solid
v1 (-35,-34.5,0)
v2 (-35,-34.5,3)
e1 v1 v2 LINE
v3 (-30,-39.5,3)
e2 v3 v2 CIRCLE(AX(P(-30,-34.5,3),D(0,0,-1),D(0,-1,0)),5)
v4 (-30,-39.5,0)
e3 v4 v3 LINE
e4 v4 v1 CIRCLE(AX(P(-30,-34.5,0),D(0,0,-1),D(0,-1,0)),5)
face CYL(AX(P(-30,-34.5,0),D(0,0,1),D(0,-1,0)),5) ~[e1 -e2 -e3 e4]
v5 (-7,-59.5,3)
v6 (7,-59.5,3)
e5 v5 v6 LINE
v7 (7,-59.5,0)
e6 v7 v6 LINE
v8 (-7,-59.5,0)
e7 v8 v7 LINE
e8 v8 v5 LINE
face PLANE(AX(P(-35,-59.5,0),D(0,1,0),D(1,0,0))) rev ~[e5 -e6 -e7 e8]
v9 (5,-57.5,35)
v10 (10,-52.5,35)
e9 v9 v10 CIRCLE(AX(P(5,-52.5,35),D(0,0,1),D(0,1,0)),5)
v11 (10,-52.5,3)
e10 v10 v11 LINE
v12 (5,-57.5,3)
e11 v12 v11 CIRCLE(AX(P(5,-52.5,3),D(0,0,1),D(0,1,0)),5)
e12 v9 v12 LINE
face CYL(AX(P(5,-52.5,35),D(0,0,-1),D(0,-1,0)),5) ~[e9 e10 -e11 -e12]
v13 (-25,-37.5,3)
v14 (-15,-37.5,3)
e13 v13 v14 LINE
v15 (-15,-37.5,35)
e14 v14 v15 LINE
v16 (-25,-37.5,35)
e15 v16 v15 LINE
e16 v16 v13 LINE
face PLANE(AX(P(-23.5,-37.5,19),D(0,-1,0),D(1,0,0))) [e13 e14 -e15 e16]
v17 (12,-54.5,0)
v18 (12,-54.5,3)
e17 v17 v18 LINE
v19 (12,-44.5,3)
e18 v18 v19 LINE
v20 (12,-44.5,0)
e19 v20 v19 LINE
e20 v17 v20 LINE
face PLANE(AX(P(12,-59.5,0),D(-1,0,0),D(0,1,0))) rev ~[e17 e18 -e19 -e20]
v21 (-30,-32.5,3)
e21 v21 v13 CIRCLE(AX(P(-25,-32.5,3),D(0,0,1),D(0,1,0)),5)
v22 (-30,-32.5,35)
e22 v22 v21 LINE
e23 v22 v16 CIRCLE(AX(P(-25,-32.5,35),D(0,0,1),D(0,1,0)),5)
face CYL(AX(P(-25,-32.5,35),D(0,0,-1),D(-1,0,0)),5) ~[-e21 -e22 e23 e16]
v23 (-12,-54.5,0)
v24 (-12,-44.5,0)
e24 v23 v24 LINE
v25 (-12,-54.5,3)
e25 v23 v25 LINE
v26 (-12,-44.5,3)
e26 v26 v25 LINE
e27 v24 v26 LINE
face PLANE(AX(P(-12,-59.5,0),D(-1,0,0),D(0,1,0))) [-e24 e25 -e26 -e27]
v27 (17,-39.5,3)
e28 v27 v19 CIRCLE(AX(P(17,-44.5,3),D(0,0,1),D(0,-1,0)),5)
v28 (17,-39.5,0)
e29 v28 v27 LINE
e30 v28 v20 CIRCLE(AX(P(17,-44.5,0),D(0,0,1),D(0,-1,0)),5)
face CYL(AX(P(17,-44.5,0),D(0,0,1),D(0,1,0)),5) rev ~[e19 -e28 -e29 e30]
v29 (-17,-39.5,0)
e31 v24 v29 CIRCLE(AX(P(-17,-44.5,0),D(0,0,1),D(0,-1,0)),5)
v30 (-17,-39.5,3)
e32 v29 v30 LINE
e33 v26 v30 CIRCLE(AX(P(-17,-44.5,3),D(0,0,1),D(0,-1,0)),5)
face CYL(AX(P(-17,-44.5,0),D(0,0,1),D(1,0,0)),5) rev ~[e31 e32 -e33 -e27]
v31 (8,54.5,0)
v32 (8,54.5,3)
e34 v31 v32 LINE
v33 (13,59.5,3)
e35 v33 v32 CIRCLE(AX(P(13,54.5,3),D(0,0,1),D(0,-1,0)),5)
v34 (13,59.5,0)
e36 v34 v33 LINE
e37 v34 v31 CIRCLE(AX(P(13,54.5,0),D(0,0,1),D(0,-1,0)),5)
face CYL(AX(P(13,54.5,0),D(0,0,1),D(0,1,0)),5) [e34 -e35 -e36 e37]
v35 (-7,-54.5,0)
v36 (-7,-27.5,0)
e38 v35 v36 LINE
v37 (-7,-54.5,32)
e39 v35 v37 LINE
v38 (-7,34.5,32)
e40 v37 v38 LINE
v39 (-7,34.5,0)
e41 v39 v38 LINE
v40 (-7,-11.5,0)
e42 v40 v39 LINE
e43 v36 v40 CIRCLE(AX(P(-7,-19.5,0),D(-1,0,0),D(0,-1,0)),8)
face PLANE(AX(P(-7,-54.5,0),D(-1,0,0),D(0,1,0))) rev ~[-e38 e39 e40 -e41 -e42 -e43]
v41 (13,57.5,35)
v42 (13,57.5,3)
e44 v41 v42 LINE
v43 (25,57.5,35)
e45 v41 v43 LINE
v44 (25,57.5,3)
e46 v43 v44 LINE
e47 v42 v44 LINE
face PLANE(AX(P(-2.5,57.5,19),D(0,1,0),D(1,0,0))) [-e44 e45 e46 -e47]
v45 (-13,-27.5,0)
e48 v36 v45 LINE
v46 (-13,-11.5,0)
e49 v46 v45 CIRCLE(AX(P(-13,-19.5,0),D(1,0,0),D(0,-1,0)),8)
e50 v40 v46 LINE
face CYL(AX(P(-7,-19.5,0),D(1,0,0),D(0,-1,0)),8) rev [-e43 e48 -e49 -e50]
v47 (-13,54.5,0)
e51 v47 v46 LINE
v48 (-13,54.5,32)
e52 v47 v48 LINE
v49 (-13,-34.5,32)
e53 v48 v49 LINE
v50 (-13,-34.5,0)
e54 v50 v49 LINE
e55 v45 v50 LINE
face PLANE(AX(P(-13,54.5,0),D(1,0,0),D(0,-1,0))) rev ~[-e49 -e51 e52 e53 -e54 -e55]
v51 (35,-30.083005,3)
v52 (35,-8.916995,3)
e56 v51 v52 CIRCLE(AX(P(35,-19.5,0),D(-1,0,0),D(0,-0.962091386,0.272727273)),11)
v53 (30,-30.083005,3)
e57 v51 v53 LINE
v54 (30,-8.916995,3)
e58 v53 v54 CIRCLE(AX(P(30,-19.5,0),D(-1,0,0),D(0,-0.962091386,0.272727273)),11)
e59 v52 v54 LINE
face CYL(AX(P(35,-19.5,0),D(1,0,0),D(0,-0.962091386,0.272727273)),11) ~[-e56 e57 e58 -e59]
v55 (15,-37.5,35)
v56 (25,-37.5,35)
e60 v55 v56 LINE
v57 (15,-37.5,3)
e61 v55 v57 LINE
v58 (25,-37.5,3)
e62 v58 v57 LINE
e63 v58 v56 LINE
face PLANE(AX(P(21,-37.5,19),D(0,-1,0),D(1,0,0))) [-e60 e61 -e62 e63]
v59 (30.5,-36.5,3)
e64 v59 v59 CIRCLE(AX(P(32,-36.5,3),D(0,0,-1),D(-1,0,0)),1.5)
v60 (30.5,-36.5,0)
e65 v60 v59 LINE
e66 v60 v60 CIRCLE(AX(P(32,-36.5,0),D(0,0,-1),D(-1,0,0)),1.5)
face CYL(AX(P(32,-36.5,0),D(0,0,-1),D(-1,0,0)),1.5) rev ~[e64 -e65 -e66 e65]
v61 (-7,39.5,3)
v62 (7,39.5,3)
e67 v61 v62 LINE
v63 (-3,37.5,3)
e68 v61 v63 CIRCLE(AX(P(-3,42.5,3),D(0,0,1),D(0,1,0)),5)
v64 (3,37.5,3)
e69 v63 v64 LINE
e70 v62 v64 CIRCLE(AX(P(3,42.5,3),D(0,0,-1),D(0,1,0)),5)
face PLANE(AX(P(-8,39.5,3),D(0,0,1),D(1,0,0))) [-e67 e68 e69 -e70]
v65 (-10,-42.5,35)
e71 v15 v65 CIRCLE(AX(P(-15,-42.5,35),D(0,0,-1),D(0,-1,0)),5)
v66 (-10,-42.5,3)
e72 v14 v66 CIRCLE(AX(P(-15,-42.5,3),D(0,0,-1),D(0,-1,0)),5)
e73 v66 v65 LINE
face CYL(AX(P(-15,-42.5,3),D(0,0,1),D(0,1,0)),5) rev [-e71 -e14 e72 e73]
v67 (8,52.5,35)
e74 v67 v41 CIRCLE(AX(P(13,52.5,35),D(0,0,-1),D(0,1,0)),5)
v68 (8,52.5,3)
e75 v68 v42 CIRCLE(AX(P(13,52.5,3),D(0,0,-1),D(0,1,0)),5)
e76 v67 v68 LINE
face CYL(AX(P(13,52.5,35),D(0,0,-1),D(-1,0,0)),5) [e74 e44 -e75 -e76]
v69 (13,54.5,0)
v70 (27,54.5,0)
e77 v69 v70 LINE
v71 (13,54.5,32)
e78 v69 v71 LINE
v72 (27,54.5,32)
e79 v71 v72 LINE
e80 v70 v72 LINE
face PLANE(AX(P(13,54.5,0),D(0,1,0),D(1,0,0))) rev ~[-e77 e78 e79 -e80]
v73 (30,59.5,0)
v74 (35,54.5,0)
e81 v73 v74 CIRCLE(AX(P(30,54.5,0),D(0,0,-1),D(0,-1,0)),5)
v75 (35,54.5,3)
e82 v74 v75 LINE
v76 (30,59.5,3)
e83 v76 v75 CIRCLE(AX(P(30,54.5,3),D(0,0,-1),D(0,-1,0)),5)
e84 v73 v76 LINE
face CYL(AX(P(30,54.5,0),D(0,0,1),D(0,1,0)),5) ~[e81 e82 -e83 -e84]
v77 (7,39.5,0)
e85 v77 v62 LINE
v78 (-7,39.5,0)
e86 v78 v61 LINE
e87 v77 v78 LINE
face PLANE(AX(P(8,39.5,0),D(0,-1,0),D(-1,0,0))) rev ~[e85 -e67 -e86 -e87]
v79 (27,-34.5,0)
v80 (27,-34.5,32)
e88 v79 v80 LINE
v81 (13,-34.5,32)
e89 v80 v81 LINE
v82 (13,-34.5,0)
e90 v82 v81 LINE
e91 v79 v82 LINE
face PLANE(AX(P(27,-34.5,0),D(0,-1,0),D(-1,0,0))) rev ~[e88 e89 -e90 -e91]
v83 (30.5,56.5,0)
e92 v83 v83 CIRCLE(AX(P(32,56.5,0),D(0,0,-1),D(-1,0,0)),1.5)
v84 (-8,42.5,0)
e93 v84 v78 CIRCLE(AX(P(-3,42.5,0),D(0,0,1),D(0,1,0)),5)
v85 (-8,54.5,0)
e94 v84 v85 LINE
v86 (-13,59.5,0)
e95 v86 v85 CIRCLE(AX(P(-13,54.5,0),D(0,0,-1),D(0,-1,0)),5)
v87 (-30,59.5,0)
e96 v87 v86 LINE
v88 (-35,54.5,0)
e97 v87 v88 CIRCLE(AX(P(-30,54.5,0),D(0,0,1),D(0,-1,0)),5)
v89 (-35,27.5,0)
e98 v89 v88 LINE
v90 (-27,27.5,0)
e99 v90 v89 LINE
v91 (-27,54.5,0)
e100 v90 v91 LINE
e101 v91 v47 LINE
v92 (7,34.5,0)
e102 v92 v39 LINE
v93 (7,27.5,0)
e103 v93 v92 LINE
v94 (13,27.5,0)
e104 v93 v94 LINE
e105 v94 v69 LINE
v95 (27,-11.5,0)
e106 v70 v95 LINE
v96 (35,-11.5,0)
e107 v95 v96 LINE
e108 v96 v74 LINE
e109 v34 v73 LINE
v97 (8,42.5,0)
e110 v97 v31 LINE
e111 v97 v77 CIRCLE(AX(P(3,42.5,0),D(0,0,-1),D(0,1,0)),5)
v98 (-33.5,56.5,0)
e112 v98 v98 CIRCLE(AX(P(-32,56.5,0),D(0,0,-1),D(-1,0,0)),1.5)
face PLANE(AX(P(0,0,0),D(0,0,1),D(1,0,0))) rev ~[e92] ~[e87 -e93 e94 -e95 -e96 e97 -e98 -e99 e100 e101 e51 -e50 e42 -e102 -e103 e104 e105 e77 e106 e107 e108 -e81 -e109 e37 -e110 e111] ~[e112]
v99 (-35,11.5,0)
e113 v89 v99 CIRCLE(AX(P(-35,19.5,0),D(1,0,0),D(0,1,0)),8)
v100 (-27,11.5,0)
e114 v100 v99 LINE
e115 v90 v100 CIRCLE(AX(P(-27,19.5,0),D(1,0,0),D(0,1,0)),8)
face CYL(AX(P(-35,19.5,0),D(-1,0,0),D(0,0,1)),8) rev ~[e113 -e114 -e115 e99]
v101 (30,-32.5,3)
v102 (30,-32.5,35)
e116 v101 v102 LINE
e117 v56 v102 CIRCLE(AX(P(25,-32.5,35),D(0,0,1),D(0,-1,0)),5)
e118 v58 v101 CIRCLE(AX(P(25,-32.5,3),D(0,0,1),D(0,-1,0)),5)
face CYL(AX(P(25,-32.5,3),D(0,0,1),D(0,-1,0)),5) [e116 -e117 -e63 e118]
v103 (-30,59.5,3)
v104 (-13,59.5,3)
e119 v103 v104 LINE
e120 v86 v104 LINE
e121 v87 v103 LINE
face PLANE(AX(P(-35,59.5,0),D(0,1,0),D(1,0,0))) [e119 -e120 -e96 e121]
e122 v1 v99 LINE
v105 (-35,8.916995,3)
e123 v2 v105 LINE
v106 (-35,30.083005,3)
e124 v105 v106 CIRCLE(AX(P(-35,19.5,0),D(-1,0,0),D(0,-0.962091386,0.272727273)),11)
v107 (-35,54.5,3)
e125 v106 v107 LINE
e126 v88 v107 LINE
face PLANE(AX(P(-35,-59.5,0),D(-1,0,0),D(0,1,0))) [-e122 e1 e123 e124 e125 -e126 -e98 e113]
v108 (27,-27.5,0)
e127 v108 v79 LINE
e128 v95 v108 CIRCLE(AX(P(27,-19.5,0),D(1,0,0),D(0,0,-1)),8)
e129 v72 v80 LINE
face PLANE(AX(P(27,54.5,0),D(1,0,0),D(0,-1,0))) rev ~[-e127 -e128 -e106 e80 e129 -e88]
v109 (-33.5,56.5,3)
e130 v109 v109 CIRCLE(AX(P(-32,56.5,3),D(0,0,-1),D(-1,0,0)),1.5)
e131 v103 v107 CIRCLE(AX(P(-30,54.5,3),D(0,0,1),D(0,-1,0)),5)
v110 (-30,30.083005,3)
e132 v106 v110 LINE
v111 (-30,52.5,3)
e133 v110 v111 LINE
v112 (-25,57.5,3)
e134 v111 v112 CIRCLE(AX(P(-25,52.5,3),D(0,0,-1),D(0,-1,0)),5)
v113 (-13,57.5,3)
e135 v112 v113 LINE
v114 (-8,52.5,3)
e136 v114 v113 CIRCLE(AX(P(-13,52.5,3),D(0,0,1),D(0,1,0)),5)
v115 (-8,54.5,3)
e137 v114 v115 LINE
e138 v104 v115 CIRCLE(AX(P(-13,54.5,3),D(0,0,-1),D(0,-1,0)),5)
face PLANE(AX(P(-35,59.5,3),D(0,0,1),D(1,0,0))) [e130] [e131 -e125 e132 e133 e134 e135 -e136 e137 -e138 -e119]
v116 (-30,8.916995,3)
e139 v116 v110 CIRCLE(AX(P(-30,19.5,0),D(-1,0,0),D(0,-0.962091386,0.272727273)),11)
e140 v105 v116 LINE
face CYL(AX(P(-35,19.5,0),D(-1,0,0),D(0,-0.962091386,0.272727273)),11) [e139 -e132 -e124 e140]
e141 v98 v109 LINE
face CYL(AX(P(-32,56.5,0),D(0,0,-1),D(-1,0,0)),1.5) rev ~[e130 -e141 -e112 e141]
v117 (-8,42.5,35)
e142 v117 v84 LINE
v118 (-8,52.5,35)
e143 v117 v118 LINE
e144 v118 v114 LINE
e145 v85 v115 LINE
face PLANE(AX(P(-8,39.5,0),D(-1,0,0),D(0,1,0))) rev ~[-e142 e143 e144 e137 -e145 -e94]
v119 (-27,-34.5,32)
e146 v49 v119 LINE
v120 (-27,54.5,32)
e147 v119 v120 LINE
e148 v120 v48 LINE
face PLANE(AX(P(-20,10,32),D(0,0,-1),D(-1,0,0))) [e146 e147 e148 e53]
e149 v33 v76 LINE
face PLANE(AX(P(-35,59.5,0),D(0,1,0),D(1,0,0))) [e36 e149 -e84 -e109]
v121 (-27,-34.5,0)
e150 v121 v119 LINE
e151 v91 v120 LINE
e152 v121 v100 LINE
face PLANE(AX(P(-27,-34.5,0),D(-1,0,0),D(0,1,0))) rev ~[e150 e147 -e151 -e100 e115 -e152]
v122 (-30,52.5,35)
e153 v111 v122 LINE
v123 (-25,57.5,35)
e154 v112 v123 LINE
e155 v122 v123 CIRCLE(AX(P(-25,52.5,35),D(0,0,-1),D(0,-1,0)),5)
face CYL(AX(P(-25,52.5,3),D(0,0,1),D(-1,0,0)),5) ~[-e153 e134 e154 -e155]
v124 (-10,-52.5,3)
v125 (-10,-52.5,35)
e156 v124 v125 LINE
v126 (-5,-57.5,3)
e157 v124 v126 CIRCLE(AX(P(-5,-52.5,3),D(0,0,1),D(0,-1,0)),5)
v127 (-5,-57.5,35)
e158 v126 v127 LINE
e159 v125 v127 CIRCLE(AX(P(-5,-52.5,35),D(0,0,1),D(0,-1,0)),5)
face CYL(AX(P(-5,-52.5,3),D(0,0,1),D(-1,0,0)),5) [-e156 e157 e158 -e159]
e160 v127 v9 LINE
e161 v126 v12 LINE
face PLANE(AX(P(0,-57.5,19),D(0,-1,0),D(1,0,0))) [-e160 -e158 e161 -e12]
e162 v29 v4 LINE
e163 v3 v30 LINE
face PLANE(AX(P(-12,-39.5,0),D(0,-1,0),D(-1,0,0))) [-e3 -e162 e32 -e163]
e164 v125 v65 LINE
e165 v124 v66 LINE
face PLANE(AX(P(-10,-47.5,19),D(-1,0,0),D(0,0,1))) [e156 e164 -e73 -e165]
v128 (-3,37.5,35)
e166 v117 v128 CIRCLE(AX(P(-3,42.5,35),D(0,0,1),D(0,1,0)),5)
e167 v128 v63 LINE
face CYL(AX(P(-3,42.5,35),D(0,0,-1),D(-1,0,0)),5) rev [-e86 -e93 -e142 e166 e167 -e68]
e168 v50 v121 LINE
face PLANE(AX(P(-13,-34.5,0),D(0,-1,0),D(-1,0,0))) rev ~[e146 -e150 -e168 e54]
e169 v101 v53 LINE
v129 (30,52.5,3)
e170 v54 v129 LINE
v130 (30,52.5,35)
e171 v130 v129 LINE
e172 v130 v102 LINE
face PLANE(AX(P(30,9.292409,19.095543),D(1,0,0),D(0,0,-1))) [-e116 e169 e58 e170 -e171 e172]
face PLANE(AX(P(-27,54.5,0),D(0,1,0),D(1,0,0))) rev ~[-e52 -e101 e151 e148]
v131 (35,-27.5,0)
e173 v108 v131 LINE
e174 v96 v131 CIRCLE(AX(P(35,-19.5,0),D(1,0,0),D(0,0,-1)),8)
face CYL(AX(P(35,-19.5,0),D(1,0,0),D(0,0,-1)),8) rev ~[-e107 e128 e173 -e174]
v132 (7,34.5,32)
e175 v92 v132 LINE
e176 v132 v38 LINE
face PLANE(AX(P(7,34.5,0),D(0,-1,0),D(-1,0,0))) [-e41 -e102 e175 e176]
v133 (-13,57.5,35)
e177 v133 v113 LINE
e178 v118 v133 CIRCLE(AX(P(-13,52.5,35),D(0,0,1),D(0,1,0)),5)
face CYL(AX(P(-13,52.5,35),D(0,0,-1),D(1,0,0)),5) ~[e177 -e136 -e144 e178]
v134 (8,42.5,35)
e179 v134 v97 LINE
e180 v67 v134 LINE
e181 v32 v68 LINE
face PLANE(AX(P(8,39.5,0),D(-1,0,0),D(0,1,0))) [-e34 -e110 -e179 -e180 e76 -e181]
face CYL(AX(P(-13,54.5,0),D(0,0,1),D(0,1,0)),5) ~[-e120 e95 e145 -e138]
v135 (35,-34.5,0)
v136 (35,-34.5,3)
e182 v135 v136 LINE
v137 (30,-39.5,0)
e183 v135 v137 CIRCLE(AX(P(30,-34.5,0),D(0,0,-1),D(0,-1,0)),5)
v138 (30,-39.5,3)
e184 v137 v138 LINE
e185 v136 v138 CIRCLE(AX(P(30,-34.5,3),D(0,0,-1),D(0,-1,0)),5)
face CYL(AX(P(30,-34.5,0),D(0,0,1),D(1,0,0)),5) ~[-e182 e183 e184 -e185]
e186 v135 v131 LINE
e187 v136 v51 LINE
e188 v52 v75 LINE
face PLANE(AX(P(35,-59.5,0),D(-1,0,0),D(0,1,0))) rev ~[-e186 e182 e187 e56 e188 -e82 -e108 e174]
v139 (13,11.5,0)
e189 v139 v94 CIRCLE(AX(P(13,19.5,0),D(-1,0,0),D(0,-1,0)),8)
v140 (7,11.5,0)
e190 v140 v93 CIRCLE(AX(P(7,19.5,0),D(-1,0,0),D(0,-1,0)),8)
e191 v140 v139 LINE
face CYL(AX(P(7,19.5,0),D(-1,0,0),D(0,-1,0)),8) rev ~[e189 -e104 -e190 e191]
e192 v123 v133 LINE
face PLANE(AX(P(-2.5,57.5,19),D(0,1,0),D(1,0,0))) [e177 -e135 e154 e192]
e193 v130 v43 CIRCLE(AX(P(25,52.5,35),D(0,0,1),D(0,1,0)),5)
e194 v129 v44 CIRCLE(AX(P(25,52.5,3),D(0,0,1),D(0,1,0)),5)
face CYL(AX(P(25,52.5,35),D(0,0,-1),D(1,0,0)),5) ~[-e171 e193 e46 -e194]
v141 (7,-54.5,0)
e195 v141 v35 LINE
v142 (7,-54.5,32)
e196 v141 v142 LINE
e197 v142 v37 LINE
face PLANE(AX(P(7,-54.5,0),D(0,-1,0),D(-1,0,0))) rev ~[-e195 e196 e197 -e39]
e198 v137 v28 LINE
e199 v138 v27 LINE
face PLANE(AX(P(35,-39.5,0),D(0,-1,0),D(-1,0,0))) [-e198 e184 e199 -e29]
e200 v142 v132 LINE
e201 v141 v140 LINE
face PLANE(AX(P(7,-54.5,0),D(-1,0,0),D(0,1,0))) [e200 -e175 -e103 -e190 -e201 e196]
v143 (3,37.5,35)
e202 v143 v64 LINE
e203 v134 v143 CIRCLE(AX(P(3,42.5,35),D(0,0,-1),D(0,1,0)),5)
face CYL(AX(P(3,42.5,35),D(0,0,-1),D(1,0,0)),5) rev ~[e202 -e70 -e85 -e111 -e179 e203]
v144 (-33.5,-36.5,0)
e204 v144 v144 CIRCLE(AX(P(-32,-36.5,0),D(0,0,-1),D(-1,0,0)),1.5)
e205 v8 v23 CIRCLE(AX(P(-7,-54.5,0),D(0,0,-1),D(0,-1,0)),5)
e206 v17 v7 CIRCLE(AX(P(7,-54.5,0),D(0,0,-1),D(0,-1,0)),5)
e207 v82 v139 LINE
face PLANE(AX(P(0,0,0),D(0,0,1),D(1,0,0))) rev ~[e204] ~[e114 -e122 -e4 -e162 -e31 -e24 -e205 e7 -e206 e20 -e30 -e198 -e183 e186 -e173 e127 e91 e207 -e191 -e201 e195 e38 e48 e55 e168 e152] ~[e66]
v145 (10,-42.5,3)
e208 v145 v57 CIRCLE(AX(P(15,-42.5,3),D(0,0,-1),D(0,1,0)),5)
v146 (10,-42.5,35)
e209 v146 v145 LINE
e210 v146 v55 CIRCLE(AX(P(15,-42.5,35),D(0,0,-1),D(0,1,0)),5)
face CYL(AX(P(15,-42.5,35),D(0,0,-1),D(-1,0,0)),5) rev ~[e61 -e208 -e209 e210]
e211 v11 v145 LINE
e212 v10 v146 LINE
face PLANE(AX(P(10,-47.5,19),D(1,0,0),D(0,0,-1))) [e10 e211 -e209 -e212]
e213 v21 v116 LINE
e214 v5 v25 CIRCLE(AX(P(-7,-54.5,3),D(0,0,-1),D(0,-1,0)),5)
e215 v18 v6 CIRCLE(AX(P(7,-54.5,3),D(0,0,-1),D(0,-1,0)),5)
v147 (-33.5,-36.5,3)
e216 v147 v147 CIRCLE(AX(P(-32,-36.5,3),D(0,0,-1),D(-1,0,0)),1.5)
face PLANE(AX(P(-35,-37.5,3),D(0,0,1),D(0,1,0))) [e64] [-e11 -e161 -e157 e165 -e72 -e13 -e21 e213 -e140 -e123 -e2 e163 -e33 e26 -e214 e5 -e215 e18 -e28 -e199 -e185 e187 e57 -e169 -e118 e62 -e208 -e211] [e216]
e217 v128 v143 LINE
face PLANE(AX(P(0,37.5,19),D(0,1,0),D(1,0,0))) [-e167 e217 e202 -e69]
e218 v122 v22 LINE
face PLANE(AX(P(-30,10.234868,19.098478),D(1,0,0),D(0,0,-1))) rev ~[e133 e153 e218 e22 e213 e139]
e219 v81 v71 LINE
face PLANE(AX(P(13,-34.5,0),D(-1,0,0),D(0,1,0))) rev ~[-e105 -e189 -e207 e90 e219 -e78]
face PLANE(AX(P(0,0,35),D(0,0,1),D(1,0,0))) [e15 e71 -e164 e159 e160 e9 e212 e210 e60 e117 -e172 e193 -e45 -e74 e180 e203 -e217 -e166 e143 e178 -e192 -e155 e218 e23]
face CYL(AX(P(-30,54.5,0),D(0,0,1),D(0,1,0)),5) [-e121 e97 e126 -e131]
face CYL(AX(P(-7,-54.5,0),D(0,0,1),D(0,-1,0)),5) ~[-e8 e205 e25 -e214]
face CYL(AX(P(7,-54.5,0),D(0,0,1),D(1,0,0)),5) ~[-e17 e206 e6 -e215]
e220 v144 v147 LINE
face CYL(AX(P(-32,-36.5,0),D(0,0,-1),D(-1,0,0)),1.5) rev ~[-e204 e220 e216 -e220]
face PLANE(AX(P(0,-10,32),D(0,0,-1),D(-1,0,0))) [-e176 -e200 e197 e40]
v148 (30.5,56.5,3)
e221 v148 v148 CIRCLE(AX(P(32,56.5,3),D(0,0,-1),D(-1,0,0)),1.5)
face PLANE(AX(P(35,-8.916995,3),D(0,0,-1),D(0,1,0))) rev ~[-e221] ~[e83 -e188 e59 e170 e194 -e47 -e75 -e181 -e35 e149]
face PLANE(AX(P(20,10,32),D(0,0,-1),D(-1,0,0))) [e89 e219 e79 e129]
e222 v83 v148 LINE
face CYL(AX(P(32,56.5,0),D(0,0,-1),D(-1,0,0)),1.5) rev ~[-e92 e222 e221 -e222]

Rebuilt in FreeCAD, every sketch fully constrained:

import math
import FreeCAD as App
import Part
import Sketcher


def edges_at(feature, points):
    """Names of the edges that pass closest to the given points."""
    edges = feature.Shape.Edges
    near = lambda p: min(range(len(edges)), key=lambda i: edges[i].distToShape(Part.Vertex(*p))[0])
    return sorted({f"Edge{near(p) + 1}" for p in points})

doc = App.newDocument("Part")
body = doc.addObject("PartDesign::Body", "Body")

sketch1 = body.newObject("Sketcher::SketchObject", "Sketch")
sketch1.AttachmentSupport = (doc.getObject("XY_Plane"), [""])
sketch1.MapMode = "FlatFace"
sketch1.addGeometry(Part.LineSegment(App.Vector(-35, 59.5, 0), App.Vector(-35, -59.5, 0)), False)
sketch1.addGeometry(Part.LineSegment(App.Vector(-35, -59.5, 0), App.Vector(35, -59.5, 0)), False)
sketch1.addGeometry(Part.LineSegment(App.Vector(35, -59.5, 0), App.Vector(35, 59.5, 0)), False)
sketch1.addGeometry(Part.LineSegment(App.Vector(35, 59.5, 0), App.Vector(-35, 59.5, 0)), False)
sketch1.addConstraint(Sketcher.Constraint("Coincident", 0, 2, 1, 1))
sketch1.addConstraint(Sketcher.Constraint("Coincident", 1, 2, 2, 1))
sketch1.addConstraint(Sketcher.Constraint("Coincident", 2, 2, 3, 1))
sketch1.addConstraint(Sketcher.Constraint("Coincident", 3, 2, 0, 1))
sketch1.addConstraint(Sketcher.Constraint("Vertical", 0))
sketch1.addConstraint(Sketcher.Constraint("Horizontal", 1))
sketch1.addConstraint(Sketcher.Constraint("Vertical", 2))
sketch1.addConstraint(Sketcher.Constraint("Horizontal", 3))
sketch1.addConstraint(Sketcher.Constraint("Symmetric", 0, 2, 2, 2, -1, 1))
sketch1.addConstraint(Sketcher.Constraint("DistanceX", 1, 1, 1, 2, 70.0))
sketch1.addConstraint(Sketcher.Constraint("DistanceY", 0, 2, 0, 1, 119.0))
pad1 = body.newObject("PartDesign::Pad", "Pad")
pad1.Profile = sketch1
pad1.Length = 35

sketch2 = body.newObject("Sketcher::SketchObject", "Sketch001")
sketch2.AttachmentSupport = (doc.getObject("YZ_Plane"), [""])
sketch2.MapMode = "FlatFace"
sketch2.AttachmentOffset = App.Placement(App.Vector(0, 0, 35), App.Rotation())
sketch2.addGeometry(Part.Circle(App.Vector(-19.5, 0, 0), App.Vector(0, 0, 1), 8), False)
sketch2.addConstraint(Sketcher.Constraint("PointOnObject", 0, 3, -1))
sketch2.addConstraint(Sketcher.Constraint("Diameter", 0, 16.0))
sketch2.addConstraint(Sketcher.Constraint("DistanceX", 0, 3, -1, 1, 19.5))
pocket1 = body.newObject("PartDesign::Pocket", "Pocket")
pocket1.Profile = sketch2
pocket1.Length = 8

sketch3 = body.newObject("Sketcher::SketchObject", "Sketch002")
sketch3.AttachmentSupport = (doc.getObject("YZ_Plane"), [""])
sketch3.MapMode = "FlatFace"
sketch3.AttachmentOffset = App.Placement(App.Vector(0, 0, -35), App.Rotation())
sketch3.addGeometry(Part.Circle(App.Vector(19.5, 0, 0), App.Vector(0, 0, 1), 8), False)
sketch3.addConstraint(Sketcher.Constraint("PointOnObject", 0, 3, -1))
sketch3.addConstraint(Sketcher.Constraint("Diameter", 0, 16.0))
sketch3.addConstraint(Sketcher.Constraint("DistanceX", -1, 1, 0, 3, 19.5))
pocket2 = body.newObject("PartDesign::Pocket", "Pocket001")
pocket2.Profile = sketch3
pocket2.Length = 8
pocket2.Reversed = True

sketch4 = body.newObject("Sketcher::SketchObject", "Sketch003")
sketch4.AttachmentSupport = (doc.getObject("XY_Plane"), [""])
sketch4.MapMode = "FlatFace"
sketch4.addGeometry(Part.LineSegment(App.Vector(13, -34.5, 0), App.Vector(13, 54.5, 0)), False)
sketch4.addGeometry(Part.LineSegment(App.Vector(13, 54.5, 0), App.Vector(27, 54.5, 0)), False)
sketch4.addGeometry(Part.LineSegment(App.Vector(27, 54.5, 0), App.Vector(27, -34.5, 0)), False)
sketch4.addGeometry(Part.LineSegment(App.Vector(27, -34.5, 0), App.Vector(13, -34.5, 0)), False)
sketch4.addGeometry(Part.LineSegment(App.Vector(7, 34.5, 0), App.Vector(7, -54.5, 0)), False)
sketch4.addGeometry(Part.LineSegment(App.Vector(7, -54.5, 0), App.Vector(-7, -54.5, 0)), False)
sketch4.addGeometry(Part.LineSegment(App.Vector(-7, -54.5, 0), App.Vector(-7, 34.5, 0)), False)
sketch4.addGeometry(Part.LineSegment(App.Vector(-7, 34.5, 0), App.Vector(7, 34.5, 0)), False)
sketch4.addGeometry(Part.LineSegment(App.Vector(-27, 54.5, 0), App.Vector(-13, 54.5, 0)), False)
sketch4.addGeometry(Part.LineSegment(App.Vector(-13, 54.5, 0), App.Vector(-13, -34.5, 0)), False)
sketch4.addGeometry(Part.LineSegment(App.Vector(-13, -34.5, 0), App.Vector(-27, -34.5, 0)), False)
sketch4.addGeometry(Part.LineSegment(App.Vector(-27, -34.5, 0), App.Vector(-27, 54.5, 0)), False)
sketch4.addConstraint(Sketcher.Constraint("Coincident", 0, 2, 1, 1))
sketch4.addConstraint(Sketcher.Constraint("Coincident", 1, 2, 2, 1))
sketch4.addConstraint(Sketcher.Constraint("Coincident", 2, 2, 3, 1))
sketch4.addConstraint(Sketcher.Constraint("Coincident", 3, 2, 0, 1))
sketch4.addConstraint(Sketcher.Constraint("Coincident", 4, 2, 5, 1))
sketch4.addConstraint(Sketcher.Constraint("Coincident", 5, 2, 6, 1))
sketch4.addConstraint(Sketcher.Constraint("Coincident", 6, 2, 7, 1))
sketch4.addConstraint(Sketcher.Constraint("Coincident", 7, 2, 4, 1))
sketch4.addConstraint(Sketcher.Constraint("Coincident", 8, 2, 9, 1))
sketch4.addConstraint(Sketcher.Constraint("Coincident", 9, 2, 10, 1))
sketch4.addConstraint(Sketcher.Constraint("Coincident", 10, 2, 11, 1))
sketch4.addConstraint(Sketcher.Constraint("Coincident", 11, 2, 8, 1))
sketch4.addConstraint(Sketcher.Constraint("Vertical", 0))
sketch4.addConstraint(Sketcher.Constraint("Horizontal", 1))
sketch4.addConstraint(Sketcher.Constraint("Vertical", 2))
sketch4.addConstraint(Sketcher.Constraint("Horizontal", 3))
sketch4.addConstraint(Sketcher.Constraint("Vertical", 4))
sketch4.addConstraint(Sketcher.Constraint("Horizontal", 5))
sketch4.addConstraint(Sketcher.Constraint("Vertical", 6))
sketch4.addConstraint(Sketcher.Constraint("Horizontal", 7))
sketch4.addConstraint(Sketcher.Constraint("Horizontal", 8))
sketch4.addConstraint(Sketcher.Constraint("Vertical", 9))
sketch4.addConstraint(Sketcher.Constraint("Horizontal", 10))
sketch4.addConstraint(Sketcher.Constraint("Vertical", 11))
sketch4.addConstraint(Sketcher.Constraint("Symmetric", 0, 2, 8, 2, -2))
sketch4.addConstraint(Sketcher.Constraint("Symmetric", 2, 2, 10, 2, -2))
sketch4.addConstraint(Sketcher.Constraint("Equal", 3, 5))
sketch4.addConstraint(Sketcher.Constraint("Equal", 2, 4))
sketch4.addConstraint(Sketcher.Constraint("DistanceX", 1, 1, 1, 2, 14.0))
sketch4.addConstraint(Sketcher.Constraint("DistanceY", 0, 1, 0, 2, 89.0))
sketch4.addConstraint(Sketcher.Constraint("DistanceX", -1, 1, 0, 2, 13.0))
sketch4.addConstraint(Sketcher.Constraint("DistanceX", -1, 1, 4, 2, 7.0))
sketch4.addConstraint(Sketcher.Constraint("DistanceY", 4, 2, 3, 2, 20.0))
sketch4.addConstraint(Sketcher.Constraint("DistanceY", -1, 1, 0, 2, 54.5))
pocket3 = body.newObject("PartDesign::Pocket", "Pocket002")
pocket3.Profile = sketch4
pocket3.Length = 32
pocket3.Reversed = True

sketch5 = body.newObject("Sketcher::SketchObject", "Sketch004")
sketch5.AttachmentSupport = (doc.getObject("YZ_Plane"), [""])
sketch5.MapMode = "FlatFace"
sketch5.AttachmentOffset = App.Placement(App.Vector(0, 0, 7), App.Rotation())
sketch5.addGeometry(Part.LineSegment(App.Vector(27.5, 0, 0), App.Vector(11.5, 0, 0)), False)
sketch5.addGeometry(Part.ArcOfCircle(Part.Circle(App.Vector(19.5, 0, 0), App.Vector(0, 0, 1), 8), math.radians(0), math.radians(180)), False)
sketch5.addConstraint(Sketcher.Constraint("Coincident", 0, 1, 1, 1))
sketch5.addConstraint(Sketcher.Constraint("Coincident", 1, 2, 0, 2))
sketch5.addConstraint(Sketcher.Constraint("Horizontal", 0))
sketch5.addConstraint(Sketcher.Constraint("PointOnObject", 1, 3, -1))
sketch5.addConstraint(Sketcher.Constraint("PointOnObject", 0, 1, -1))
sketch5.addConstraint(Sketcher.Constraint("Radius", 1, 8.0))
sketch5.addConstraint(Sketcher.Constraint("DistanceX", -1, 1, 1, 3, 19.5))
pocket4 = body.newObject("PartDesign::Pocket", "Pocket003")
pocket4.Profile = sketch5
pocket4.Type = "UpToFirst"
pocket4.Reversed = True

sketch6 = body.newObject("Sketcher::SketchObject", "Sketch005")
sketch6.AttachmentSupport = (doc.getObject("YZ_Plane"), [""])
sketch6.MapMode = "FlatFace"
sketch6.AttachmentOffset = App.Placement(App.Vector(0, 0, -7), App.Rotation())
sketch6.addGeometry(Part.LineSegment(App.Vector(-27.5, 0, 0), App.Vector(-11.5, 0, 0)), False)
sketch6.addGeometry(Part.ArcOfCircle(Part.Circle(App.Vector(-19.5, 0, 0), App.Vector(0, 0, 1), 8), math.radians(0), math.radians(180)), False)
sketch6.addConstraint(Sketcher.Constraint("Coincident", 0, 1, 1, 2))
sketch6.addConstraint(Sketcher.Constraint("Coincident", 1, 1, 0, 2))
sketch6.addConstraint(Sketcher.Constraint("Horizontal", 0))
sketch6.addConstraint(Sketcher.Constraint("PointOnObject", 1, 3, -1))
sketch6.addConstraint(Sketcher.Constraint("PointOnObject", 0, 1, -1))
sketch6.addConstraint(Sketcher.Constraint("Radius", 1, 8.0))
sketch6.addConstraint(Sketcher.Constraint("DistanceX", 1, 3, -1, 1, 19.5))
pocket5 = body.newObject("PartDesign::Pocket", "Pocket004")
pocket5.Profile = sketch6
pocket5.Type = "UpToFirst"

sketch7 = body.newObject("Sketcher::SketchObject", "Sketch006")
sketch7.AttachmentSupport = (doc.getObject("XY_Plane"), [""])
sketch7.MapMode = "FlatFace"
sketch7.addGeometry(Part.LineSegment(App.Vector(-12, -39.5, 0), App.Vector(-12, -59.5, 0)), False)
sketch7.addGeometry(Part.LineSegment(App.Vector(-12, -59.5, 0), App.Vector(-35, -59.5, 0)), False)
sketch7.addGeometry(Part.LineSegment(App.Vector(-35, -59.5, 0), App.Vector(-35, -39.5, 0)), False)
sketch7.addGeometry(Part.LineSegment(App.Vector(-35, -39.5, 0), App.Vector(-12, -39.5, 0)), False)
sketch7.addGeometry(Part.LineSegment(App.Vector(8, 59.5, 0), App.Vector(8, 39.5, 0)), False)
sketch7.addGeometry(Part.LineSegment(App.Vector(8, 39.5, 0), App.Vector(-8, 39.5, 0)), False)
sketch7.addGeometry(Part.LineSegment(App.Vector(-8, 39.5, 0), App.Vector(-8, 59.5, 0)), False)
sketch7.addGeometry(Part.LineSegment(App.Vector(-8, 59.5, 0), App.Vector(8, 59.5, 0)), False)
sketch7.addGeometry(Part.LineSegment(App.Vector(35, -39.5, 0), App.Vector(35, -59.5, 0)), False)
sketch7.addGeometry(Part.LineSegment(App.Vector(35, -59.5, 0), App.Vector(12, -59.5, 0)), False)
sketch7.addGeometry(Part.LineSegment(App.Vector(12, -59.5, 0), App.Vector(12, -39.5, 0)), False)
sketch7.addGeometry(Part.LineSegment(App.Vector(12, -39.5, 0), App.Vector(35, -39.5, 0)), False)
sketch7.addConstraint(Sketcher.Constraint("Coincident", 0, 2, 1, 1))
sketch7.addConstraint(Sketcher.Constraint("Coincident", 1, 2, 2, 1))
sketch7.addConstraint(Sketcher.Constraint("Coincident", 2, 2, 3, 1))
sketch7.addConstraint(Sketcher.Constraint("Coincident", 3, 2, 0, 1))
sketch7.addConstraint(Sketcher.Constraint("Coincident", 4, 2, 5, 1))
sketch7.addConstraint(Sketcher.Constraint("Coincident", 5, 2, 6, 1))
sketch7.addConstraint(Sketcher.Constraint("Coincident", 6, 2, 7, 1))
sketch7.addConstraint(Sketcher.Constraint("Coincident", 7, 2, 4, 1))
sketch7.addConstraint(Sketcher.Constraint("Coincident", 8, 2, 9, 1))
sketch7.addConstraint(Sketcher.Constraint("Coincident", 9, 2, 10, 1))
sketch7.addConstraint(Sketcher.Constraint("Coincident", 10, 2, 11, 1))
sketch7.addConstraint(Sketcher.Constraint("Coincident", 11, 2, 8, 1))
sketch7.addConstraint(Sketcher.Constraint("Vertical", 0))
sketch7.addConstraint(Sketcher.Constraint("Horizontal", 1))
sketch7.addConstraint(Sketcher.Constraint("Vertical", 2))
sketch7.addConstraint(Sketcher.Constraint("Horizontal", 3))
sketch7.addConstraint(Sketcher.Constraint("Vertical", 4))
sketch7.addConstraint(Sketcher.Constraint("Horizontal", 5))
sketch7.addConstraint(Sketcher.Constraint("Vertical", 6))
sketch7.addConstraint(Sketcher.Constraint("Horizontal", 7))
sketch7.addConstraint(Sketcher.Constraint("Vertical", 8))
sketch7.addConstraint(Sketcher.Constraint("Horizontal", 9))
sketch7.addConstraint(Sketcher.Constraint("Vertical", 10))
sketch7.addConstraint(Sketcher.Constraint("Horizontal", 11))
sketch7.addConstraint(Sketcher.Constraint("Symmetric", 1, 2, 8, 2, -2))
sketch7.addConstraint(Sketcher.Constraint("Symmetric", 3, 2, 10, 2, -2))
sketch7.addConstraint(Sketcher.Constraint("Equal", 2, 4))
sketch7.addConstraint(Sketcher.Constraint("DistanceX", 1, 2, 1, 1, 23.0))
sketch7.addConstraint(Sketcher.Constraint("DistanceX", 5, 2, 5, 1, 16.0))
sketch7.addConstraint(Sketcher.Constraint("DistanceY", 0, 2, 0, 1, 20.0))
sketch7.addConstraint(Sketcher.Constraint("DistanceX", 0, 2, -1, 1, 12.0))
sketch7.addConstraint(Sketcher.Constraint("DistanceX", -1, 1, 4, 2, 8.0))
sketch7.addConstraint(Sketcher.Constraint("DistanceY", 3, 2, 4, 2, 79.0))
sketch7.addConstraint(Sketcher.Constraint("DistanceY", 0, 2, -1, 1, 59.5))
pocket6 = body.newObject("PartDesign::Pocket", "Pocket005")
pocket6.Profile = sketch7
pocket6.Type = "ThroughAll"
pocket6.Reversed = True

sketch8 = body.newObject("Sketcher::SketchObject", "Sketch007")
sketch8.AttachmentSupport = (doc.getObject("YZ_Plane"), [""])
sketch8.MapMode = "FlatFace"
sketch8.AttachmentOffset = App.Placement(App.Vector(0, 0, 35), App.Rotation())
sketch8.addGeometry(Part.LineSegment(App.Vector(59.5, 3, 0), App.Vector(59.5, 35, 0)), False)
sketch8.addGeometry(Part.LineSegment(App.Vector(59.5, 35, 0), App.Vector(-39.5, 35, 0)), False)
sketch8.addGeometry(Part.LineSegment(App.Vector(-39.5, 35, 0), App.Vector(-39.5, 3, 0)), False)
sketch8.addGeometry(Part.LineSegment(App.Vector(-39.5, 3, 0), App.Vector(-30.083005, 3, 0)), False)
sketch8.addGeometry(Part.ArcOfCircle(Part.Circle(App.Vector(-19.5, 0, 0), App.Vector(0, 0, 1), 11), math.radians(15.82662), math.radians(164.17338)), False)
sketch8.addGeometry(Part.LineSegment(App.Vector(-8.916995, 3, 0), App.Vector(59.5, 3, 0)), False)
sketch8.addConstraint(Sketcher.Constraint("Coincident", 0, 2, 1, 1))
sketch8.addConstraint(Sketcher.Constraint("Coincident", 1, 2, 2, 1))
sketch8.addConstraint(Sketcher.Constraint("Coincident", 2, 2, 3, 1))
sketch8.addConstraint(Sketcher.Constraint("Coincident", 3, 2, 4, 2))
sketch8.addConstraint(Sketcher.Constraint("Coincident", 4, 1, 5, 1))
sketch8.addConstraint(Sketcher.Constraint("Coincident", 5, 2, 0, 1))
sketch8.addConstraint(Sketcher.Constraint("Vertical", 0))
sketch8.addConstraint(Sketcher.Constraint("Horizontal", 1))
sketch8.addConstraint(Sketcher.Constraint("Vertical", 2))
sketch8.addConstraint(Sketcher.Constraint("Horizontal", 3))
sketch8.addConstraint(Sketcher.Constraint("Horizontal", 5))
sketch8.addConstraint(Sketcher.Constraint("PointOnObject", 4, 3, -1))
sketch8.addConstraint(Sketcher.Constraint("Horizontal", 3, 2, 4, 1))
sketch8.addConstraint(Sketcher.Constraint("Radius", 4, 11.0))
sketch8.addConstraint(Sketcher.Constraint("DistanceX", 1, 2, 1, 1, 99.0))
sketch8.addConstraint(Sketcher.Constraint("DistanceY", 0, 1, 0, 2, 32.0))
sketch8.addConstraint(Sketcher.Constraint("DistanceY", -1, 1, 0, 2, 35.0))
sketch8.addConstraint(Sketcher.Constraint("DistanceX", 4, 3, 0, 2, 79.0))
sketch8.addConstraint(Sketcher.Constraint("DistanceX", 4, 3, -1, 1, 19.5))
pocket7 = body.newObject("PartDesign::Pocket", "Pocket006")
pocket7.Profile = sketch8
pocket7.Length = 5

sketch9 = body.newObject("Sketcher::SketchObject", "Sketch008")
sketch9.AttachmentSupport = (doc.getObject("XZ_Plane"), [""])
sketch9.MapMode = "FlatFace"
sketch9.AttachmentOffset = App.Placement(App.Vector(0, 0, 39.5), App.Rotation())
sketch9.addGeometry(Part.LineSegment(App.Vector(12, 35, 0), App.Vector(12, 3, 0)), False)
sketch9.addGeometry(Part.LineSegment(App.Vector(12, 3, 0), App.Vector(30, 3, 0)), False)
sketch9.addGeometry(Part.LineSegment(App.Vector(30, 3, 0), App.Vector(30, 35, 0)), False)
sketch9.addGeometry(Part.LineSegment(App.Vector(30, 35, 0), App.Vector(12, 35, 0)), False)
sketch9.addConstraint(Sketcher.Constraint("Coincident", 0, 2, 1, 1))
sketch9.addConstraint(Sketcher.Constraint("Coincident", 1, 2, 2, 1))
sketch9.addConstraint(Sketcher.Constraint("Coincident", 2, 2, 3, 1))
sketch9.addConstraint(Sketcher.Constraint("Coincident", 3, 2, 0, 1))
sketch9.addConstraint(Sketcher.Constraint("Vertical", 0))
sketch9.addConstraint(Sketcher.Constraint("Horizontal", 1))
sketch9.addConstraint(Sketcher.Constraint("Vertical", 2))
sketch9.addConstraint(Sketcher.Constraint("Horizontal", 3))
sketch9.addConstraint(Sketcher.Constraint("DistanceX", 1, 1, 1, 2, 18.0))
sketch9.addConstraint(Sketcher.Constraint("DistanceY", 0, 2, 0, 1, 32.0))
sketch9.addConstraint(Sketcher.Constraint("DistanceX", -1, 1, 0, 2, 12.0))
sketch9.addConstraint(Sketcher.Constraint("DistanceY", -1, 1, 0, 2, 3.0))
pocket8 = body.newObject("PartDesign::Pocket", "Pocket007")
pocket8.Profile = sketch9
pocket8.Length = 2

sketch10 = body.newObject("Sketcher::SketchObject", "Sketch009")
sketch10.AttachmentSupport = (doc.getObject("XZ_Plane"), [""])
sketch10.MapMode = "FlatFace"
sketch10.AttachmentOffset = App.Placement(App.Vector(0, 0, 59.5), App.Rotation())
sketch10.addGeometry(Part.LineSegment(App.Vector(-12, 35, 0), App.Vector(-12, 3, 0)), False)
sketch10.addGeometry(Part.LineSegment(App.Vector(-12, 3, 0), App.Vector(12, 3, 0)), False)
sketch10.addGeometry(Part.LineSegment(App.Vector(12, 3, 0), App.Vector(12, 35, 0)), False)
sketch10.addGeometry(Part.LineSegment(App.Vector(12, 35, 0), App.Vector(-12, 35, 0)), False)
sketch10.addConstraint(Sketcher.Constraint("Coincident", 0, 2, 1, 1))
sketch10.addConstraint(Sketcher.Constraint("Coincident", 1, 2, 2, 1))
sketch10.addConstraint(Sketcher.Constraint("Coincident", 2, 2, 3, 1))
sketch10.addConstraint(Sketcher.Constraint("Coincident", 3, 2, 0, 1))
sketch10.addConstraint(Sketcher.Constraint("Vertical", 0))
sketch10.addConstraint(Sketcher.Constraint("Horizontal", 1))
sketch10.addConstraint(Sketcher.Constraint("Vertical", 2))
sketch10.addConstraint(Sketcher.Constraint("Horizontal", 3))
sketch10.addConstraint(Sketcher.Constraint("DistanceX", 1, 1, 1, 2, 24.0))
sketch10.addConstraint(Sketcher.Constraint("DistanceY", 0, 2, 0, 1, 32.0))
sketch10.addConstraint(Sketcher.Constraint("DistanceX", 0, 2, -1, 1, 12.0))
sketch10.addConstraint(Sketcher.Constraint("DistanceY", -1, 1, 0, 2, 3.0))
pocket9 = body.newObject("PartDesign::Pocket", "Pocket008")
pocket9.Profile = sketch10
pocket9.Length = 2

sketch11 = body.newObject("Sketcher::SketchObject", "Sketch010")
sketch11.AttachmentSupport = (doc.getObject("XZ_Plane"), [""])
sketch11.MapMode = "FlatFace"
sketch11.AttachmentOffset = App.Placement(App.Vector(0, 0, 39.5), App.Rotation())
sketch11.addGeometry(Part.LineSegment(App.Vector(-35, 35, 0), App.Vector(-35, 3, 0)), False)
sketch11.addGeometry(Part.LineSegment(App.Vector(-35, 3, 0), App.Vector(-12, 3, 0)), False)
sketch11.addGeometry(Part.LineSegment(App.Vector(-12, 3, 0), App.Vector(-12, 35, 0)), False)
sketch11.addGeometry(Part.LineSegment(App.Vector(-12, 35, 0), App.Vector(-35, 35, 0)), False)
sketch11.addConstraint(Sketcher.Constraint("Coincident", 0, 2, 1, 1))
sketch11.addConstraint(Sketcher.Constraint("Coincident", 1, 2, 2, 1))
sketch11.addConstraint(Sketcher.Constraint("Coincident", 2, 2, 3, 1))
sketch11.addConstraint(Sketcher.Constraint("Coincident", 3, 2, 0, 1))
sketch11.addConstraint(Sketcher.Constraint("Vertical", 0))
sketch11.addConstraint(Sketcher.Constraint("Horizontal", 1))
sketch11.addConstraint(Sketcher.Constraint("Vertical", 2))
sketch11.addConstraint(Sketcher.Constraint("Horizontal", 3))
sketch11.addConstraint(Sketcher.Constraint("DistanceX", 1, 1, 1, 2, 23.0))
sketch11.addConstraint(Sketcher.Constraint("DistanceY", 0, 2, 0, 1, 32.0))
sketch11.addConstraint(Sketcher.Constraint("DistanceX", 0, 2, -1, 1, 35.0))
sketch11.addConstraint(Sketcher.Constraint("DistanceY", -1, 1, 0, 2, 3.0))
pocket10 = body.newObject("PartDesign::Pocket", "Pocket009")
pocket10.Profile = sketch11
pocket10.Length = 2

sketch12 = body.newObject("Sketcher::SketchObject", "Sketch011")
sketch12.AttachmentSupport = (doc.getObject("YZ_Plane"), [""])
sketch12.MapMode = "FlatFace"
sketch12.AttachmentOffset = App.Placement(App.Vector(0, 0, -12), App.Rotation())
sketch12.addGeometry(Part.LineSegment(App.Vector(-37.5, 3, 0), App.Vector(-57.5, 3, 0)), False)
sketch12.addGeometry(Part.LineSegment(App.Vector(-57.5, 3, 0), App.Vector(-57.5, 35, 0)), False)
sketch12.addGeometry(Part.LineSegment(App.Vector(-57.5, 35, 0), App.Vector(-37.5, 35, 0)), False)
sketch12.addGeometry(Part.LineSegment(App.Vector(-37.5, 35, 0), App.Vector(-37.5, 3, 0)), False)
sketch12.addConstraint(Sketcher.Constraint("Coincident", 0, 2, 1, 1))
sketch12.addConstraint(Sketcher.Constraint("Coincident", 1, 2, 2, 1))
sketch12.addConstraint(Sketcher.Constraint("Coincident", 2, 2, 3, 1))
sketch12.addConstraint(Sketcher.Constraint("Coincident", 3, 2, 0, 1))
sketch12.addConstraint(Sketcher.Constraint("Horizontal", 0))
sketch12.addConstraint(Sketcher.Constraint("Vertical", 1))
sketch12.addConstraint(Sketcher.Constraint("Horizontal", 2))
sketch12.addConstraint(Sketcher.Constraint("Vertical", 3))
sketch12.addConstraint(Sketcher.Constraint("DistanceX", 0, 2, 0, 1, 20.0))
sketch12.addConstraint(Sketcher.Constraint("DistanceY", 1, 1, 1, 2, 32.0))
sketch12.addConstraint(Sketcher.Constraint("DistanceY", -1, 1, 0, 2, 3.0))
sketch12.addConstraint(Sketcher.Constraint("DistanceX", 0, 2, -1, 1, 57.5))
pocket11 = body.newObject("PartDesign::Pocket", "Pocket010")
pocket11.Profile = sketch12
pocket11.Length = 2
pocket11.Reversed = True

sketch13 = body.newObject("Sketcher::SketchObject", "Sketch012")
sketch13.AttachmentSupport = (doc.getObject("YZ_Plane"), [""])
sketch13.MapMode = "FlatFace"
sketch13.AttachmentOffset = App.Placement(App.Vector(0, 0, 12), App.Rotation())
sketch13.addGeometry(Part.LineSegment(App.Vector(-37.5, 35, 0), App.Vector(-57.5, 35, 0)), False)
sketch13.addGeometry(Part.LineSegment(App.Vector(-57.5, 35, 0), App.Vector(-57.5, 3, 0)), False)
sketch13.addGeometry(Part.LineSegment(App.Vector(-57.5, 3, 0), App.Vector(-37.5, 3, 0)), False)
sketch13.addGeometry(Part.LineSegment(App.Vector(-37.5, 3, 0), App.Vector(-37.5, 35, 0)), False)
sketch13.addConstraint(Sketcher.Constraint("Coincident", 0, 2, 1, 1))
sketch13.addConstraint(Sketcher.Constraint("Coincident", 1, 2, 2, 1))
sketch13.addConstraint(Sketcher.Constraint("Coincident", 2, 2, 3, 1))
sketch13.addConstraint(Sketcher.Constraint("Coincident", 3, 2, 0, 1))
sketch13.addConstraint(Sketcher.Constraint("Horizontal", 0))
sketch13.addConstraint(Sketcher.Constraint("Vertical", 1))
sketch13.addConstraint(Sketcher.Constraint("Horizontal", 2))
sketch13.addConstraint(Sketcher.Constraint("Vertical", 3))
sketch13.addConstraint(Sketcher.Constraint("DistanceX", 0, 2, 0, 1, 20.0))
sketch13.addConstraint(Sketcher.Constraint("DistanceY", 1, 2, 1, 1, 32.0))
sketch13.addConstraint(Sketcher.Constraint("DistanceY", -1, 1, 0, 2, 35.0))
sketch13.addConstraint(Sketcher.Constraint("DistanceX", 0, 2, -1, 1, 57.5))
pocket12 = body.newObject("PartDesign::Pocket", "Pocket011")
pocket12.Profile = sketch13
pocket12.Length = 2

sketch14 = body.newObject("Sketcher::SketchObject", "Sketch013")
sketch14.AttachmentSupport = (doc.getObject("XZ_Plane"), [""])
sketch14.MapMode = "FlatFace"
sketch14.AttachmentOffset = App.Placement(App.Vector(0, 0, -59.5), App.Rotation())
sketch14.addGeometry(Part.LineSegment(App.Vector(-35, 3, 0), App.Vector(-35, 35, 0)), False)
sketch14.addGeometry(Part.LineSegment(App.Vector(-35, 35, 0), App.Vector(30, 35, 0)), False)
sketch14.addGeometry(Part.LineSegment(App.Vector(30, 35, 0), App.Vector(30, 3, 0)), False)
sketch14.addGeometry(Part.LineSegment(App.Vector(30, 3, 0), App.Vector(-35, 3, 0)), False)
sketch14.addConstraint(Sketcher.Constraint("Coincident", 0, 2, 1, 1))
sketch14.addConstraint(Sketcher.Constraint("Coincident", 1, 2, 2, 1))
sketch14.addConstraint(Sketcher.Constraint("Coincident", 2, 2, 3, 1))
sketch14.addConstraint(Sketcher.Constraint("Coincident", 3, 2, 0, 1))
sketch14.addConstraint(Sketcher.Constraint("Vertical", 0))
sketch14.addConstraint(Sketcher.Constraint("Horizontal", 1))
sketch14.addConstraint(Sketcher.Constraint("Vertical", 2))
sketch14.addConstraint(Sketcher.Constraint("Horizontal", 3))
sketch14.addConstraint(Sketcher.Constraint("DistanceX", 1, 1, 1, 2, 65.0))
sketch14.addConstraint(Sketcher.Constraint("DistanceY", 0, 1, 0, 2, 32.0))
sketch14.addConstraint(Sketcher.Constraint("DistanceX", 0, 2, -1, 1, 35.0))
sketch14.addConstraint(Sketcher.Constraint("DistanceY", -1, 1, 0, 2, 35.0))
pocket13 = body.newObject("PartDesign::Pocket", "Pocket012")
pocket13.Profile = sketch14
pocket13.Length = 2
pocket13.Reversed = True

sketch15 = body.newObject("Sketcher::SketchObject", "Sketch014")
sketch15.AttachmentSupport = (doc.getObject("XZ_Plane"), [""])
sketch15.MapMode = "FlatFace"
sketch15.AttachmentOffset = App.Placement(App.Vector(0, 0, -39.5), App.Rotation())
sketch15.addGeometry(Part.LineSegment(App.Vector(-8, 3, 0), App.Vector(-8, 35, 0)), False)
sketch15.addGeometry(Part.LineSegment(App.Vector(-8, 35, 0), App.Vector(8, 35, 0)), False)
sketch15.addGeometry(Part.LineSegment(App.Vector(8, 35, 0), App.Vector(8, 3, 0)), False)
sketch15.addGeometry(Part.LineSegment(App.Vector(8, 3, 0), App.Vector(-8, 3, 0)), False)
sketch15.addConstraint(Sketcher.Constraint("Coincident", 0, 2, 1, 1))
sketch15.addConstraint(Sketcher.Constraint("Coincident", 1, 2, 2, 1))
sketch15.addConstraint(Sketcher.Constraint("Coincident", 2, 2, 3, 1))
sketch15.addConstraint(Sketcher.Constraint("Coincident", 3, 2, 0, 1))
sketch15.addConstraint(Sketcher.Constraint("Vertical", 0))
sketch15.addConstraint(Sketcher.Constraint("Horizontal", 1))
sketch15.addConstraint(Sketcher.Constraint("Vertical", 2))
sketch15.addConstraint(Sketcher.Constraint("Horizontal", 3))
sketch15.addConstraint(Sketcher.Constraint("DistanceX", 1, 1, 1, 2, 16.0))
sketch15.addConstraint(Sketcher.Constraint("DistanceY", 0, 1, 0, 2, 32.0))
sketch15.addConstraint(Sketcher.Constraint("DistanceX", 0, 2, -1, 1, 8.0))
sketch15.addConstraint(Sketcher.Constraint("DistanceY", -1, 1, 0, 2, 35.0))
pocket14 = body.newObject("PartDesign::Pocket", "Pocket013")
pocket14.Profile = sketch15
pocket14.Length = 2
pocket14.Reversed = True

sketch16 = body.newObject("Sketcher::SketchObject", "Sketch015")
sketch16.AttachmentSupport = (doc.getObject("YZ_Plane"), [""])
sketch16.MapMode = "FlatFace"
sketch16.AttachmentOffset = App.Placement(App.Vector(0, 0, -35), App.Rotation())
sketch16.addGeometry(Part.LineSegment(App.Vector(57.5, 35, 0), App.Vector(57.5, 3, 0)), False)
sketch16.addGeometry(Part.LineSegment(App.Vector(57.5, 3, 0), App.Vector(30.083005, 3, 0)), False)
sketch16.addGeometry(Part.ArcOfCircle(Part.Circle(App.Vector(19.5, 0, 0), App.Vector(0, 0, 1), 11), math.radians(15.82662), math.radians(164.17338)), False)
sketch16.addGeometry(Part.LineSegment(App.Vector(8.916995, 3, 0), App.Vector(-37.5, 3, 0)), False)
sketch16.addGeometry(Part.LineSegment(App.Vector(-37.5, 3, 0), App.Vector(-37.5, 35, 0)), False)
sketch16.addGeometry(Part.LineSegment(App.Vector(-37.5, 35, 0), App.Vector(57.5, 35, 0)), False)
sketch16.addConstraint(Sketcher.Constraint("Coincident", 0, 2, 1, 1))
sketch16.addConstraint(Sketcher.Constraint("Coincident", 1, 2, 2, 1))
sketch16.addConstraint(Sketcher.Constraint("Coincident", 2, 2, 3, 1))
sketch16.addConstraint(Sketcher.Constraint("Coincident", 3, 2, 4, 1))
sketch16.addConstraint(Sketcher.Constraint("Coincident", 4, 2, 5, 1))
sketch16.addConstraint(Sketcher.Constraint("Coincident", 5, 2, 0, 1))
sketch16.addConstraint(Sketcher.Constraint("Vertical", 0))
sketch16.addConstraint(Sketcher.Constraint("Horizontal", 1))
sketch16.addConstraint(Sketcher.Constraint("Horizontal", 3))
sketch16.addConstraint(Sketcher.Constraint("Vertical", 4))
sketch16.addConstraint(Sketcher.Constraint("Horizontal", 5))
sketch16.addConstraint(Sketcher.Constraint("PointOnObject", 2, 3, -1))
sketch16.addConstraint(Sketcher.Constraint("Horizontal", 1, 2, 2, 2))
sketch16.addConstraint(Sketcher.Constraint("Radius", 2, 11.0))
sketch16.addConstraint(Sketcher.Constraint("DistanceX", 5, 1, 5, 2, 95.0))
sketch16.addConstraint(Sketcher.Constraint("DistanceY", 0, 2, 0, 1, 32.0))
sketch16.addConstraint(Sketcher.Constraint("DistanceY", -1, 1, 0, 2, 3.0))
sketch16.addConstraint(Sketcher.Constraint("DistanceX", 2, 3, 0, 2, 38.0))
sketch16.addConstraint(Sketcher.Constraint("DistanceX", -1, 1, 2, 3, 19.5))
pocket15 = body.newObject("PartDesign::Pocket", "Pocket014")
pocket15.Profile = sketch16
pocket15.Length = 5
pocket15.Reversed = True

sketch17 = body.newObject("Sketcher::SketchObject", "Sketch016")
sketch17.AttachmentSupport = (doc.getObject("XY_Plane"), [""])
sketch17.MapMode = "FlatFace"
sketch17.addGeometry(Part.Circle(App.Vector(32, 56.5, 0), App.Vector(0, 0, 1), 1.5), False)
sketch17.addGeometry(Part.Circle(App.Vector(-32, 56.5, 0), App.Vector(0, 0, 1), 1.5), False)
sketch17.addGeometry(Part.Circle(App.Vector(32, -36.5, 0), App.Vector(0, 0, 1), 1.5), False)
sketch17.addGeometry(Part.Circle(App.Vector(-32, -36.5, 0), App.Vector(0, 0, 1), 1.5), False)
sketch17.addConstraint(Sketcher.Constraint("Equal", 0, 1))
sketch17.addConstraint(Sketcher.Constraint("Equal", 1, 2))
sketch17.addConstraint(Sketcher.Constraint("Equal", 2, 3))
sketch17.addConstraint(Sketcher.Constraint("Symmetric", 0, 3, 1, 3, -2))
sketch17.addConstraint(Sketcher.Constraint("Symmetric", 2, 3, 3, 3, -2))
sketch17.addConstraint(Sketcher.Constraint("Vertical", 0, 3, 2, 3))
sketch17.addConstraint(Sketcher.Constraint("Diameter", 0, 3.0))
sketch17.addConstraint(Sketcher.Constraint("DistanceX", -1, 1, 0, 3, 32.0))
sketch17.addConstraint(Sketcher.Constraint("DistanceY", 2, 3, 0, 3, 93.0))
sketch17.addConstraint(Sketcher.Constraint("DistanceY", -1, 1, 0, 3, 56.5))
pocket16 = body.newObject("PartDesign::Pocket", "Pocket015")
pocket16.Profile = sketch17
pocket16.Length = 10
pocket16.Reversed = True
doc.recompute()

fillet = body.newObject("PartDesign::Fillet", "Fillet")
fillet.Base = (pocket16, edges_at(pocket16, [
    (-30, 57.5, 19),
    (-8, 57.5, 19),
    (-8, 37.5, 19),
    (8, 37.5, 19),
    (8, 57.5, 19),
    (30, 57.5, 19),
    (30, -37.5, 19),
    (10, -37.5, 19),
    (10, -57.5, 19),
    (-10, -37.5, 19),
    (-30, -37.5, 19),
    (-10, -57.5, 19),
]))
fillet.Radius = 5
doc.recompute()

fillet2 = body.newObject("PartDesign::Fillet", "Fillet001")
fillet2.Base = (fillet, edges_at(fillet, [
    (35, -39.5, 1.5),
    (35, 59.5, 1.5),
    (12, -39.5, 1.5),
    (12, -59.5, 1.5),
    (-12, -59.5, 1.5),
    (-12, -39.5, 1.5),
    (-35, -39.5, 1.5),
    (-8, 59.5, 1.5),
    (8, 59.5, 1.5),
    (-35, 59.5, 1.5),
]))
fillet2.Radius = 5

doc.recompute()
